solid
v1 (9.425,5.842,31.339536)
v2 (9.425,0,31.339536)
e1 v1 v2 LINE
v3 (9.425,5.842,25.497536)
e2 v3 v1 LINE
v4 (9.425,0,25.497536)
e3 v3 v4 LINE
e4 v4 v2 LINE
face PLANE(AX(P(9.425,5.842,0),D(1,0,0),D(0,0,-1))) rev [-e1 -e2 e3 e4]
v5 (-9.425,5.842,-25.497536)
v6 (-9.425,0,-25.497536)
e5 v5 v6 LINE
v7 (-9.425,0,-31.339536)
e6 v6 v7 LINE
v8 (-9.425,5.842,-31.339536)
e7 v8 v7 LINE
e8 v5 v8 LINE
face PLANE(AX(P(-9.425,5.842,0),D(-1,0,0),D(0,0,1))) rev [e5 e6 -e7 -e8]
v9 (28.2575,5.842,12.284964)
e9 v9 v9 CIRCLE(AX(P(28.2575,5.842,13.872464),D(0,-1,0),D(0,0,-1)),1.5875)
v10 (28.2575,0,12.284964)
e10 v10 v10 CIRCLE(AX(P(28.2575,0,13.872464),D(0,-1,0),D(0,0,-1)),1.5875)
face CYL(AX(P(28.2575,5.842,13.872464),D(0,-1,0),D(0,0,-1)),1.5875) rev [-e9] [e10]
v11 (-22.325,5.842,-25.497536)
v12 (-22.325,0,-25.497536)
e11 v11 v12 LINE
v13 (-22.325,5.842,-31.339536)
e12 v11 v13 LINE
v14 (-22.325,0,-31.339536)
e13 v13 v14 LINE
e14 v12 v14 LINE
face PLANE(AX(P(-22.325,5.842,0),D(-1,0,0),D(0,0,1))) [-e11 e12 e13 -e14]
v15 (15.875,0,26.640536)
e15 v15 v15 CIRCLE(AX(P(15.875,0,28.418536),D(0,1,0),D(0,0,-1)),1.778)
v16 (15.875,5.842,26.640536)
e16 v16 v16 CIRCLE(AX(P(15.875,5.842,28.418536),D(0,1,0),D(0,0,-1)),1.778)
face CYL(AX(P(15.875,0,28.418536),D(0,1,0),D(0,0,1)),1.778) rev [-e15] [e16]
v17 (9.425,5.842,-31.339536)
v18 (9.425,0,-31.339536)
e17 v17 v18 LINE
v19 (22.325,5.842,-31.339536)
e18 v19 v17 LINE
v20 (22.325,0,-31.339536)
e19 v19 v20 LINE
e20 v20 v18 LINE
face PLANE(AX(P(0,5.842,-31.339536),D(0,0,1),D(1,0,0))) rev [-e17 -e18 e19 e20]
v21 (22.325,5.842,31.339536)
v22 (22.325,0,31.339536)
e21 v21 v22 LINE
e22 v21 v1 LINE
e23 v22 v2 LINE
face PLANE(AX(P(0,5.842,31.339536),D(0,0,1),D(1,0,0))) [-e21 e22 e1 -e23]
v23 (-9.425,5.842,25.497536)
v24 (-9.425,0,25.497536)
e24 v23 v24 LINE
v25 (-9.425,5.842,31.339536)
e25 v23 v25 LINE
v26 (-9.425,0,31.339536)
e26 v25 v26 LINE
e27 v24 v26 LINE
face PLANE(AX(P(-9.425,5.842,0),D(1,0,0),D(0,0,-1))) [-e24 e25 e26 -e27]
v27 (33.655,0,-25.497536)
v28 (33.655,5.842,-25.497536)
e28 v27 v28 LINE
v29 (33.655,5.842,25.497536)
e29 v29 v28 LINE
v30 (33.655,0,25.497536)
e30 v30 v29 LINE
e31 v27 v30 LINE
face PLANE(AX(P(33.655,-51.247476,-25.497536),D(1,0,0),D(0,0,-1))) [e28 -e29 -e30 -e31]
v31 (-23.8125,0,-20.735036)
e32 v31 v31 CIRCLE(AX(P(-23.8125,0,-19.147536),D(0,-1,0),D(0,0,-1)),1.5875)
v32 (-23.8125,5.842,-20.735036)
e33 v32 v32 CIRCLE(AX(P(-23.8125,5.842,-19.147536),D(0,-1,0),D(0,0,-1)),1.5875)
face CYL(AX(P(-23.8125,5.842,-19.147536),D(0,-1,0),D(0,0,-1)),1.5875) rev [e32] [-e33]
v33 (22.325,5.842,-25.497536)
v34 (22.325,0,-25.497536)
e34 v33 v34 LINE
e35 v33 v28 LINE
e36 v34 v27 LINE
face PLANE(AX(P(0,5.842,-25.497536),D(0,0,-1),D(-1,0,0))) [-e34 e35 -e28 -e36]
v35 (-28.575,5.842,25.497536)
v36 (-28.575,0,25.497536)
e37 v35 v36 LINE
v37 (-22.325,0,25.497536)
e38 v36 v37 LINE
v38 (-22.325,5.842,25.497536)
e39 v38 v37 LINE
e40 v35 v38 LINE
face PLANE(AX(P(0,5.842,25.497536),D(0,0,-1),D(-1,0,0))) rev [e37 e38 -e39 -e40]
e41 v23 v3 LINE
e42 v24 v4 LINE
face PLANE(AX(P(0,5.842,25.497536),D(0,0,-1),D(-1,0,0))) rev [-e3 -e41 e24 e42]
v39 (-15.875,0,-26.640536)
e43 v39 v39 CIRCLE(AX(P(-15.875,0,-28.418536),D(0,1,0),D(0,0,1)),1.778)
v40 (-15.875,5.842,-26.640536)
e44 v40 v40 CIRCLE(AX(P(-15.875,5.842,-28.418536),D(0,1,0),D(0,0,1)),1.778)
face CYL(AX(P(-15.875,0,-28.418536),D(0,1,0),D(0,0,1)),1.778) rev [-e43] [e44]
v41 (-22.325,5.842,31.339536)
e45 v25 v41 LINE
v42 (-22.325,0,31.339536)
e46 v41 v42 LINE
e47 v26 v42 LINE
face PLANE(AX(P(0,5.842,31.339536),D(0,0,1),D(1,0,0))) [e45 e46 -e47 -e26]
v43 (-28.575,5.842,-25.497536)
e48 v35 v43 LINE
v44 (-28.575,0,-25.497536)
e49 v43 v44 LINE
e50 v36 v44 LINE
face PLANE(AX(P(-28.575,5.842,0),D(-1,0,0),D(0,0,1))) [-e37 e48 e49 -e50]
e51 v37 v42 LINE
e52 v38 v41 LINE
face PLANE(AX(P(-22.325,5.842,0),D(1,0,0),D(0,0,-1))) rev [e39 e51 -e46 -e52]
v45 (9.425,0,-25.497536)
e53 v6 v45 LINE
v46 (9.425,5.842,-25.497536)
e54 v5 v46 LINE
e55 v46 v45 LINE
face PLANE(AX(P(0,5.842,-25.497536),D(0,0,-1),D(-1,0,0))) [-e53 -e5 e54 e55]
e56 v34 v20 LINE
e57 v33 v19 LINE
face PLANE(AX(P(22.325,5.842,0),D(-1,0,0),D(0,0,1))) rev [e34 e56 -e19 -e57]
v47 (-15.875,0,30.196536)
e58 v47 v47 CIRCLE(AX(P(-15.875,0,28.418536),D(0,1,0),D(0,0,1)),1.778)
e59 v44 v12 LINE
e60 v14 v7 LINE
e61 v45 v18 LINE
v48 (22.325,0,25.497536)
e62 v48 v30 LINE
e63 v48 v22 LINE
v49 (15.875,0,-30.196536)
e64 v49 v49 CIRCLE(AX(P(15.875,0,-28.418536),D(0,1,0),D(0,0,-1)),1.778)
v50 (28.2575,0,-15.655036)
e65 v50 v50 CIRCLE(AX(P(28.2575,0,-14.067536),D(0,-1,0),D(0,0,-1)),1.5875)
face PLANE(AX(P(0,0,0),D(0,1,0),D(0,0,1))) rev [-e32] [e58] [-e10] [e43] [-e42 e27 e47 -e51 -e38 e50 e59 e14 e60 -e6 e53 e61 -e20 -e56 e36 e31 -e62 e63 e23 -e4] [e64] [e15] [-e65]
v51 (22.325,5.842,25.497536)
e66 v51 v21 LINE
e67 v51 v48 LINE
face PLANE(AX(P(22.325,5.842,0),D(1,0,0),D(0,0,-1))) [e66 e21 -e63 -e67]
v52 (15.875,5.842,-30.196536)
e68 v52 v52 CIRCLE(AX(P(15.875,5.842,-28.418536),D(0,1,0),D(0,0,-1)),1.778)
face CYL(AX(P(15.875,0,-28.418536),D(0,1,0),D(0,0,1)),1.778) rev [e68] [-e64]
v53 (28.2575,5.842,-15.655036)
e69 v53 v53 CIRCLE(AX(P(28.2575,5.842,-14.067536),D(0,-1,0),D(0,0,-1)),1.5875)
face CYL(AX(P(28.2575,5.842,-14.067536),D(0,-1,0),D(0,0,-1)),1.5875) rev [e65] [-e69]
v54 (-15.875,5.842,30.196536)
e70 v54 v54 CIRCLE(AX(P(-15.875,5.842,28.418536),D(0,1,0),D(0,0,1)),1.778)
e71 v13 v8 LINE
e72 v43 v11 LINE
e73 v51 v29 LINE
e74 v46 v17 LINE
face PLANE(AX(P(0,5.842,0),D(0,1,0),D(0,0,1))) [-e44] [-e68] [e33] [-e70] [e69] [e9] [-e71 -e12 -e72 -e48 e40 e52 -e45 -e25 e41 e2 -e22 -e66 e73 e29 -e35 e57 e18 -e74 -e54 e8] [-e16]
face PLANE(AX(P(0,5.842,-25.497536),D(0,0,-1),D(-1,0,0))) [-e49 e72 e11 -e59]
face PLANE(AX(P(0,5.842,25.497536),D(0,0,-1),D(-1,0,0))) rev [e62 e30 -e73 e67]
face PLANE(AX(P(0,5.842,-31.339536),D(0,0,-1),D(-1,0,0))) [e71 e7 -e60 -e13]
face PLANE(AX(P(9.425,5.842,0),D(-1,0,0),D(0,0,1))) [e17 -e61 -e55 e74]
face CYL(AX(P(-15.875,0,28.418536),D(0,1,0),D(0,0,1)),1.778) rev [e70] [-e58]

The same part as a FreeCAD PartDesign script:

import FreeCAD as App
import Part
import Sketcher
from FreeCAD import Vector
Q = App.Units.Quantity


def add_polygon(sketch, points):
    """Adds a closed chain of lines whose ends are joined by coincident constraints."""
    first, n = sketch.GeometryCount, len(points)
    for a, b in zip(points, points[1:] + points[:1]):
        sketch.addGeometry(Part.LineSegment(App.Vector(*a, 0), App.Vector(*b, 0)), False)
    for i in range(n):
        sketch.addConstraint(Sketcher.Constraint("Coincident", first + i, 2, first + (i + 1) % n, 1))

doc = App.newDocument("Part")
body = doc.addObject("PartDesign::Body", "Body")

# Sketch on XZ plane
sketch1 = body.newObject("Sketcher::SketchObject", "Sketch")
sketch1.AttachmentSupport = (doc.getObject("XZ_Plane"), [""])
sketch1.MapMode = "FlatFace"
add_polygon(sketch1, [(9.425, 31.339536), (22.325, 31.339536), (22.325, 25.497536), (28.575, 25.497536), (28.575, -25.497536), (22.325, -25.497536), (22.325, -31.339536), (9.425, -31.339536), (9.425, -25.497536), (-9.425, -25.497536), (-9.425, -31.339536), (-22.325, -31.339536), (-22.325, -25.497536), (-28.575, -25.497536), (-28.575, 25.497536), (-22.325, 25.497536), (-22.325, 31.339536), (-9.425, 31.339536), (-9.425, 25.497536), (9.425, 25.497536)])  # lines 0-19
sketch1.addConstraint([
    Sketcher.Constraint("Horizontal", 0),
    Sketcher.Constraint("Vertical", 1),
    Sketcher.Constraint("Horizontal", 2),
    Sketcher.Constraint("Vertical", 3),
    Sketcher.Constraint("Horizontal", 4),
    Sketcher.Constraint("Vertical", 5),
    Sketcher.Constraint("Horizontal", 6),
    Sketcher.Constraint("Vertical", 7),
    Sketcher.Constraint("Horizontal", 8),
    Sketcher.Constraint("Vertical", 9),
    Sketcher.Constraint("Horizontal", 10),
    Sketcher.Constraint("Vertical", 11),
    Sketcher.Constraint("Horizontal", 12),
    Sketcher.Constraint("Vertical", 13),
    Sketcher.Constraint("Horizontal", 14),
    Sketcher.Constraint("Vertical", 15),
    Sketcher.Constraint("Horizontal", 16),
    Sketcher.Constraint("Vertical", 17),
    Sketcher.Constraint("Horizontal", 18),
    Sketcher.Constraint("Vertical", 19),
    Sketcher.Constraint("Symmetric", 0, 2, 10, 2, -1, 1),
    Sketcher.Constraint("Symmetric", 2, 2, 12, 2, -1, 1),
    Sketcher.Constraint("Symmetric", 4, 2, 14, 2, -1, 1),
    Sketcher.Constraint("Symmetric", 6, 2, 16, 2, -1, 1),
    Sketcher.Constraint("Symmetric", 8, 2, 18, 2, -1, 1),
    Sketcher.Constraint("Symmetric", 6, 2, 9, 2, -2),
    Sketcher.Constraint("Symmetric", 4, 2, 11, 2, -2),
    Sketcher.Constraint("Horizontal", 4, 2, 7, 2),
    Sketcher.Constraint("DistanceY", 1, 2, 1, 1, Q("0.23 in")),
    Sketcher.Constraint("DistanceX", 8, 2, 4, 2, Q("1.25 in")),
    Sketcher.Constraint("DistanceX", -1, 1, 2, 2, Q("1.125 in")),
    Sketcher.Constraint("DistanceX", 0, 1, 0, 2, 12.9),
    Sketcher.Constraint("DistanceY", 3, 2, 3, 1, 50.995072),
])
pad1 = body.newObject("PartDesign::Pad", "Pad")
pad1.Profile = sketch1
pad1.Length = Q("0.23 in")
pad1.Reversed = True

# Sketch on XZ plane
sketch2 = body.newObject("Sketcher::SketchObject", "Sketch001")
sketch2.AttachmentSupport = (doc.getObject("XZ_Plane"), [""])
sketch2.MapMode = "FlatFace"
sketch2.AttachmentOffset = App.Placement(Vector(0, 0, -0.23 * 25.4), App.Rotation())
sketch2.addGeometry([
    Part.Circle(Vector(-15.875, -28.418536, 0), Vector(0, 0, 1), 1.778),
    Part.Circle(Vector(-15.875, 28.418536, 0), Vector(0, 0, 1), 1.778),
    Part.Circle(Vector(15.875, -28.418536, 0), Vector(0, 0, 1), 1.778),
    Part.Circle(Vector(15.875, 28.418536, 0), Vector(0, 0, 1), 1.778),
], False)
sketch2.addConstraint([
    Sketcher.Constraint("Equal", 0, 1),
    Sketcher.Constraint("Equal", 1, 2),
    Sketcher.Constraint("Equal", 2, 3),
    Sketcher.Constraint("Symmetric", 1, 3, 2, 3, -1, 1),
    Sketcher.Constraint("Symmetric", 0, 3, 3, 3, -1, 1),
    Sketcher.Constraint("Symmetric", 0, 3, 2, 3, -2),
    Sketcher.Constraint("Diameter", 0, Q("0.14 in")),
    Sketcher.Constraint("DistanceX", 0, 3, 2, 3, Q("1.25 in")),
    Sketcher.Constraint("DistanceY", 0, 3, -1, 1, 28.418536),
])
pocket1 = body.newObject("PartDesign::Pocket", "Pocket")
pocket1.Profile = sketch2
pocket1.Type = "ThroughAll"
pocket1.Reversed = True

# Sketch on XZ plane
sketch3 = body.newObject("Sketcher::SketchObject", "Sketch002")
sketch3.AttachmentSupport = (doc.getObject("XZ_Plane"), [""])
sketch3.MapMode = "FlatFace"
sketch3.AttachmentOffset = App.Placement(Vector(0, 0, -0.23 * 25.4), App.Rotation())
add_polygon(sketch3, [(28.575, -25.497536), (28.575, 25.497536), (33.655, 25.497536), (33.655, -25.497536)])  # lines 0-3
sketch3.addConstraint([
    Sketcher.Constraint("Vertical", 0),
    Sketcher.Constraint("Horizontal", 1),
    Sketcher.Constraint("Vertical", 2),
    Sketcher.Constraint("Horizontal", 3),
    Sketcher.Constraint("DistanceX", 1, 1, 1, 2, Q("0.2 in")),
    Sketcher.Constraint("DistanceX", -1, 1, 0, 2, Q("1.125 in")),
    Sketcher.Constraint("DistanceY", 0, 1, 0, 2, 50.995072),
    Sketcher.Constraint("DistanceY", -1, 1, 0, 2, 25.497536),
])
pad2 = body.newObject("PartDesign::Pad", "Pad001")
pad2.Profile = sketch3
pad2.Length = Q("0.23 in")

# Sketch on XZ plane
sketch4 = body.newObject("Sketcher::SketchObject", "Sketch003")
sketch4.AttachmentSupport = (doc.getObject("XZ_Plane"), [""])
sketch4.MapMode = "FlatFace"
sketch4.addGeometry([
    Part.Circle(Vector(-23.8125, -19.147536, 0), Vector(0, 0, 1), 1.5875),
    Part.Circle(Vector(28.2575, -14.067536, 0), Vector(0, 0, 1), 1.5875),
    Part.Circle(Vector(28.2575, 13.872464, 0), Vector(0, 0, 1), 1.5875),
], False)
sketch4.addConstraint([
    Sketcher.Constraint("Equal", 0, 1),
    Sketcher.Constraint("Equal", 1, 2),
    Sketcher.Constraint("Vertical", 1, 3, 2, 3),
    Sketcher.Constraint("Diameter", 0, Q("0.125 in")),
    Sketcher.Constraint("DistanceY", 0, 3, 1, 3, Q("0.2 in")),
    Sketcher.Constraint("DistanceY", 1, 3, 2, 3, Q("1.1 in")),
    Sketcher.Constraint("DistanceX", 0, 3, 1, 3, Q("2.05 in")),
    Sketcher.Constraint("DistanceX", 0, 3, -1, 1, Q("0.9375 in")),
    Sketcher.Constraint("DistanceY", 0, 3, -1, 1, 19.147536),
])
pocket2 = body.newObject("PartDesign::Pocket", "Pocket001")
pocket2.Profile = sketch4
pocket2.Type = "ThroughAll"

doc.recompute()
